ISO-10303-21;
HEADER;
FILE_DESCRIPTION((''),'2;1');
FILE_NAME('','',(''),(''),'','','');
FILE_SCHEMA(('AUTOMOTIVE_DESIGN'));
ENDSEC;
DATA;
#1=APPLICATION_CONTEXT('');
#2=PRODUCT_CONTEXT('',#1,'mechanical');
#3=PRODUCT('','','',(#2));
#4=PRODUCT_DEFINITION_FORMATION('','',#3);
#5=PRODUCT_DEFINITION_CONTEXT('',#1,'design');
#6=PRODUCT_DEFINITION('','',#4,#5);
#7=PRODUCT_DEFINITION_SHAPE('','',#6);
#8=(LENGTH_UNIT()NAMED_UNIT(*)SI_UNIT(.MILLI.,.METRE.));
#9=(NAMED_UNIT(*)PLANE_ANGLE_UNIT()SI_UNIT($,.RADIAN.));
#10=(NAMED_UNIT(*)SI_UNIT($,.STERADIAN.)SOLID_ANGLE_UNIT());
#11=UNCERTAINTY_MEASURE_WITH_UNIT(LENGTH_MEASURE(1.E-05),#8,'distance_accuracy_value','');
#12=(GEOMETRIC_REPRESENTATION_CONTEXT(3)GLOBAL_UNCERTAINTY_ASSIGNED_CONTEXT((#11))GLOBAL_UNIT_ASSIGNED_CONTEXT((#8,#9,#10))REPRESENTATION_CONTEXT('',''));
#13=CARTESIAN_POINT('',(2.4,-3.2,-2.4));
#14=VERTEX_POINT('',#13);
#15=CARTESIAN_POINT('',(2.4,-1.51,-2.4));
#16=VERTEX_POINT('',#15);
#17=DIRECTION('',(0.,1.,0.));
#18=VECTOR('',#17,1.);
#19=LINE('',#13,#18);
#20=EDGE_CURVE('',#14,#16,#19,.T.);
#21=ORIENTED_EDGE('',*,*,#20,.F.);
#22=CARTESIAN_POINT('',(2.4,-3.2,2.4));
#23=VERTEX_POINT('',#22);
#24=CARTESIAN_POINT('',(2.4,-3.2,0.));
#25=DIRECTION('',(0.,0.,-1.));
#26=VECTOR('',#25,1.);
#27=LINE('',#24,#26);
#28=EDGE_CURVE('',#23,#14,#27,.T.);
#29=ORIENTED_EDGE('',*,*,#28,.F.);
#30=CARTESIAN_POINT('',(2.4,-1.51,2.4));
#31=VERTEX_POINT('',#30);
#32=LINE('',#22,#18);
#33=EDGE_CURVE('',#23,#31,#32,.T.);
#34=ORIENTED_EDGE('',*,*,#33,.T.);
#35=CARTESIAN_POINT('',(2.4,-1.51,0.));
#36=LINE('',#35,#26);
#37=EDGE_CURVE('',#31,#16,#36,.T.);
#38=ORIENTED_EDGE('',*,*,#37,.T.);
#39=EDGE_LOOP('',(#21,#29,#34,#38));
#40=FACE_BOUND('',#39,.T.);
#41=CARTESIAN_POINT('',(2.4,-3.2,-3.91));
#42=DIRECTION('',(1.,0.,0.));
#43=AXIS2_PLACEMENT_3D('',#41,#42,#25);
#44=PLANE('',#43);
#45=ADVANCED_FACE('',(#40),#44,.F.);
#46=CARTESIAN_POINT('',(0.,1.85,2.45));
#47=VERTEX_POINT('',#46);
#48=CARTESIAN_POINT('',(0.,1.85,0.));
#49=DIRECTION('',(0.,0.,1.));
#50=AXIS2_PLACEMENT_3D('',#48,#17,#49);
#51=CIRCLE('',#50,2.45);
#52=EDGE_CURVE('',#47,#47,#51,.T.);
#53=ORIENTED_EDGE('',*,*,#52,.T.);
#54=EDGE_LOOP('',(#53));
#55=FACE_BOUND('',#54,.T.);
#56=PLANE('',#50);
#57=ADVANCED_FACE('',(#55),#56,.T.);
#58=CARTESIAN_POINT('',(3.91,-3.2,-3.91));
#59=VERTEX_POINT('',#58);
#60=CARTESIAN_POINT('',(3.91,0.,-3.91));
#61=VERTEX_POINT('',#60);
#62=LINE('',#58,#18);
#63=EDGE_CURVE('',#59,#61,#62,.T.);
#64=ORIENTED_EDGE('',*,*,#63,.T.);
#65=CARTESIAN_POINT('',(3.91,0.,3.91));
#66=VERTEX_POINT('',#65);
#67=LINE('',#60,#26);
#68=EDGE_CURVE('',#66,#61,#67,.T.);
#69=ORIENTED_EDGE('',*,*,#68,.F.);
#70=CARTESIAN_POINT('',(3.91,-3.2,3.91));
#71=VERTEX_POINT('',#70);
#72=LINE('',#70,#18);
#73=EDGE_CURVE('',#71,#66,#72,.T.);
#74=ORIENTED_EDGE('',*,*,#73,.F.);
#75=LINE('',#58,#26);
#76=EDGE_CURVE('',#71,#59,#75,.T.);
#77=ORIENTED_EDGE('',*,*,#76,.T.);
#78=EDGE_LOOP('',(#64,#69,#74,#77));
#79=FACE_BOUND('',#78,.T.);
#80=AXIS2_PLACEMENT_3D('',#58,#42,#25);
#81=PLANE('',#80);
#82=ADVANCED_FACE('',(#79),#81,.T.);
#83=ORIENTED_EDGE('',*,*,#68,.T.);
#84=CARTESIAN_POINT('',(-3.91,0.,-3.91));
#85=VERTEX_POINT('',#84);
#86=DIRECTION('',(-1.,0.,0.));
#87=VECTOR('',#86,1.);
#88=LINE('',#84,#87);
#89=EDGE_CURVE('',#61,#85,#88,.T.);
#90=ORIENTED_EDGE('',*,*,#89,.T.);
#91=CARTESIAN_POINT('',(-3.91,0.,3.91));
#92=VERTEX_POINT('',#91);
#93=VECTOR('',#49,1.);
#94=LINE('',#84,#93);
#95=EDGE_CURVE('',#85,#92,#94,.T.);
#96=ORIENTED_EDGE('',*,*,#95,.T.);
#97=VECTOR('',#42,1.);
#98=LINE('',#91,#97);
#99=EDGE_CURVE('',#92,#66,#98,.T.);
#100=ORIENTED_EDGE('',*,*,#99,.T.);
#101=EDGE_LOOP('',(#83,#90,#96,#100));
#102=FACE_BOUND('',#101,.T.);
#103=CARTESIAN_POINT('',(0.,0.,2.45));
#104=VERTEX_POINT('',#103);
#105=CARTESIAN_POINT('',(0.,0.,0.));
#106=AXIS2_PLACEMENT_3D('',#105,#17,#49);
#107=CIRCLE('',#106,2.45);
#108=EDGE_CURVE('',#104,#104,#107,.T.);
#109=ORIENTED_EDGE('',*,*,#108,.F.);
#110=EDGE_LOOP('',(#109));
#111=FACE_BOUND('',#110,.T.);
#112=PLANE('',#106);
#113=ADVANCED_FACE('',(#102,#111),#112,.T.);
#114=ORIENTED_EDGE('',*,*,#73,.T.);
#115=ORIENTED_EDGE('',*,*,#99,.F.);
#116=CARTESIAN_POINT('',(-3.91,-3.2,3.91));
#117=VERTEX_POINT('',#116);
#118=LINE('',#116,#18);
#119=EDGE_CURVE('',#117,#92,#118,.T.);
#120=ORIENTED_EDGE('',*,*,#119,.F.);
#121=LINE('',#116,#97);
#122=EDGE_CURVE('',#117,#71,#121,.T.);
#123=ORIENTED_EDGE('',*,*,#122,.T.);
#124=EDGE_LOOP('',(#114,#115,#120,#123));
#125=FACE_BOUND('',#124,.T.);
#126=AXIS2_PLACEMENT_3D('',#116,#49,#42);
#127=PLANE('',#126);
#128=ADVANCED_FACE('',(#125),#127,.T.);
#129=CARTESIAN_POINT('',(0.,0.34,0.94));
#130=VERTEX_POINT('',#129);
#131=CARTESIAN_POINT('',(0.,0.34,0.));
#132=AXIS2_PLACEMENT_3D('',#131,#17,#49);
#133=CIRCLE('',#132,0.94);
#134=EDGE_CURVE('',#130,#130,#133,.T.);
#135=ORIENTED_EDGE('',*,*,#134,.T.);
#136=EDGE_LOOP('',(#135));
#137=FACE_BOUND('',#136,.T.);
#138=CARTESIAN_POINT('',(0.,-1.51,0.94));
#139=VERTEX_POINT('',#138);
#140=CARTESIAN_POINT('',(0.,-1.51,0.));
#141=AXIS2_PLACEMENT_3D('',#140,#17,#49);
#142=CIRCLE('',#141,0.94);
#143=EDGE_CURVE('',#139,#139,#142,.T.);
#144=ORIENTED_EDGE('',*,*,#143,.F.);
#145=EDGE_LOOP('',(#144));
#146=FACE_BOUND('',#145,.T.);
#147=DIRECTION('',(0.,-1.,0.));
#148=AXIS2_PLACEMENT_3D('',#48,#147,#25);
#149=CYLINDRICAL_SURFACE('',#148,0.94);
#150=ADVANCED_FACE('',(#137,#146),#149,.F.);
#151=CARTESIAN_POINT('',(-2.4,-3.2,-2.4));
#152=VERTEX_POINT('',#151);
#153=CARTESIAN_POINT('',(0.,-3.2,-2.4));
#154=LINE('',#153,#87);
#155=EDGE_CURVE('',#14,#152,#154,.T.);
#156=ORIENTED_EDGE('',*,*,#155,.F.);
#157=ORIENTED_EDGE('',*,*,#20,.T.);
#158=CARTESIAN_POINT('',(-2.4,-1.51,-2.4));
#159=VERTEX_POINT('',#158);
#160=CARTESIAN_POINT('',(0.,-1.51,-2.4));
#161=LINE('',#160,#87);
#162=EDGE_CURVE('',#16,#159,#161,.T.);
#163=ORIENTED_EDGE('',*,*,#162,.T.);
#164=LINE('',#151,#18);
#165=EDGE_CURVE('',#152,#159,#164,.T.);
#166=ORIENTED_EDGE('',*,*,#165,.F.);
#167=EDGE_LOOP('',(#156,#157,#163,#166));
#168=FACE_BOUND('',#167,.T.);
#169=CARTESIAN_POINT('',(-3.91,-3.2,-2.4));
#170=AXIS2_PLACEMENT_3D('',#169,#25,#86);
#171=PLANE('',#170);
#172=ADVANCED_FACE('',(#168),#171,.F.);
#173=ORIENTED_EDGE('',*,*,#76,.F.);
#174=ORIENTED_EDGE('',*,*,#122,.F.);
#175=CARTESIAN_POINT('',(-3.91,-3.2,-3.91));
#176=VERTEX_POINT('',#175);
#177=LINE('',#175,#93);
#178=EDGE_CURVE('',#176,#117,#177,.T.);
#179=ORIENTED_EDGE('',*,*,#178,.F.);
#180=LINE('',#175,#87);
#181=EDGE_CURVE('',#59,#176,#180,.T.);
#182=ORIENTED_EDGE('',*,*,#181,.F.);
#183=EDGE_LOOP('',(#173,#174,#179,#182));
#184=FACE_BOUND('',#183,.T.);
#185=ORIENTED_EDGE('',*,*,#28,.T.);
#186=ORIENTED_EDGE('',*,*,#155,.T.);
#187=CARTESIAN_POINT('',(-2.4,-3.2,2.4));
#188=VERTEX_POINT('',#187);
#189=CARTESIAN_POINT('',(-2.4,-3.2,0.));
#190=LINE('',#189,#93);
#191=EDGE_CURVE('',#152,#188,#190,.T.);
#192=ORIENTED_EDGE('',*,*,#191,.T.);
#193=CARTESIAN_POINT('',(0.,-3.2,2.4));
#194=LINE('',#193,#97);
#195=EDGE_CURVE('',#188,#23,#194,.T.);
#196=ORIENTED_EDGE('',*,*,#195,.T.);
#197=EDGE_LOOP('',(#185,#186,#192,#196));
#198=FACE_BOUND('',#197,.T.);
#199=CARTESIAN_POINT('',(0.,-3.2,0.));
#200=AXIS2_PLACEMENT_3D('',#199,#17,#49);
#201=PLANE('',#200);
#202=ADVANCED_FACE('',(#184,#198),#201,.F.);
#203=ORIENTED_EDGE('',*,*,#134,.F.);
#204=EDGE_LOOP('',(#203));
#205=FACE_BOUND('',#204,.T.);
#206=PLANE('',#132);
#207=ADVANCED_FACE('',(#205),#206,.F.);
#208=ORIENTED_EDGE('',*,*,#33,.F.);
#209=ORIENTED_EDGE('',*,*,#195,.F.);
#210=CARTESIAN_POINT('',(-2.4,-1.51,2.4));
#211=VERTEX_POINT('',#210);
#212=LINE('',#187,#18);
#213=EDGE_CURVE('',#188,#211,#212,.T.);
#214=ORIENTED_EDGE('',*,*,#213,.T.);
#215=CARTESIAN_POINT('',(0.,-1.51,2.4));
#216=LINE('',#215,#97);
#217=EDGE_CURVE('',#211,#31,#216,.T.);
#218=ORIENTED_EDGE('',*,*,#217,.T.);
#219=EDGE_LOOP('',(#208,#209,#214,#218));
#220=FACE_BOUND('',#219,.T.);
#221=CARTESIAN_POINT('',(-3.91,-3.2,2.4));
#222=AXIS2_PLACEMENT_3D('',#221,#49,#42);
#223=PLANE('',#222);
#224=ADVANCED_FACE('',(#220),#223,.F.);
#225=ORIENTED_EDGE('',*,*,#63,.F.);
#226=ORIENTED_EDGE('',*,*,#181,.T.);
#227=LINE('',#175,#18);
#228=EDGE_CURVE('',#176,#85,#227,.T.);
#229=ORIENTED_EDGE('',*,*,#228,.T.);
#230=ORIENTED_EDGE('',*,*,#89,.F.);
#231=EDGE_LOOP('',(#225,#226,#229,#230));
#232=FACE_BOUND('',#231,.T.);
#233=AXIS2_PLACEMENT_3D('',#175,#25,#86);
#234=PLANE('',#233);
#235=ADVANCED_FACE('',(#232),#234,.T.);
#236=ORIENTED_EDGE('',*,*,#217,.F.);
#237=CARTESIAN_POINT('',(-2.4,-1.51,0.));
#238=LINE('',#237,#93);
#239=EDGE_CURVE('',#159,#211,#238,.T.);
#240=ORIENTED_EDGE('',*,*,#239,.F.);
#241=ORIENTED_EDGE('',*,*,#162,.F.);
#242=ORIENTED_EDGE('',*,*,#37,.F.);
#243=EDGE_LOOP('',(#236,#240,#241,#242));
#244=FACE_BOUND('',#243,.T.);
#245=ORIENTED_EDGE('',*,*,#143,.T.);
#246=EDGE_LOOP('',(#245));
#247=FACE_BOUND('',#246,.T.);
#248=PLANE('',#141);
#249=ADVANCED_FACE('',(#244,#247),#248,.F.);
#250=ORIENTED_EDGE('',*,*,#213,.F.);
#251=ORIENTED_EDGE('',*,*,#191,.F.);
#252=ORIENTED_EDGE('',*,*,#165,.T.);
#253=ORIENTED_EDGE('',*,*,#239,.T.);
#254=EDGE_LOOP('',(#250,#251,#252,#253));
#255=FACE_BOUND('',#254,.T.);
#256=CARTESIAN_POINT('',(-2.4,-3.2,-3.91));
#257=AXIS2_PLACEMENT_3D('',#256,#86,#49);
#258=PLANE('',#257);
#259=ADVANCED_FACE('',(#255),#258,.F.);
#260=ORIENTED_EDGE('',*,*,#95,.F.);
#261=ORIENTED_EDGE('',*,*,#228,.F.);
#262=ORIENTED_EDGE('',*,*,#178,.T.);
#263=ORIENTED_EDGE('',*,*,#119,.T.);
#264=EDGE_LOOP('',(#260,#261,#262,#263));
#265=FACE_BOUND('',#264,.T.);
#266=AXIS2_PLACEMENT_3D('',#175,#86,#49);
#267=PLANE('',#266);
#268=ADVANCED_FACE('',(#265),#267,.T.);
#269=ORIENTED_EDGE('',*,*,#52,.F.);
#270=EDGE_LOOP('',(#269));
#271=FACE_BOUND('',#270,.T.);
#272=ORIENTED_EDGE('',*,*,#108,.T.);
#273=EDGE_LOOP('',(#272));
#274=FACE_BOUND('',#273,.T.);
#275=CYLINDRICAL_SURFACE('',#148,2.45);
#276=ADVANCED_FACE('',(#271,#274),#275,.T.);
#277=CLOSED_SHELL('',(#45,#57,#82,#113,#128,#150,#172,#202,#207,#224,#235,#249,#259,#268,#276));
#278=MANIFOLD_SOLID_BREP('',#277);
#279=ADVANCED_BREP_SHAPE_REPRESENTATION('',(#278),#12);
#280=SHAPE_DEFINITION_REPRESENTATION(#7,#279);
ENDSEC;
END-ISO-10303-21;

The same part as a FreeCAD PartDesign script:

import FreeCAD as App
import Part
import Sketcher

V = App.Vector
Q = App.Units.Quantity


def faces_at(feature, points):
    """Names of the faces that lie closest to the given points."""
    faces = feature.Shape.Faces
    near = lambda p: min(range(len(faces)), key=lambda i: faces[i].distToShape(Part.Vertex(*p))[0])
    return sorted({f"Face{near(p) + 1}" for p in points})


def add_polygon(sketch, points):
    """Adds a closed chain of lines whose ends are joined by coincident constraints."""
    first, n = sketch.GeometryCount, len(points)
    for a, b in zip(points, points[1:] + points[:1]):
        sketch.addGeometry(Part.LineSegment(App.Vector(*a, 0), App.Vector(*b, 0)), False)
    for i in range(n):
        sketch.addConstraint(Sketcher.Constraint("Coincident", first + i, 2, first + (i + 1) % n, 1))

doc = App.newDocument("Part")
params = doc.addObject("Spreadsheet::Sheet", "Params")
for row, (alias, value) in enumerate([
    ("sketch1_width", "7.82 mm"),
    ("pad1_length", "3.2 mm"),
    ("sketch2_diameter", "4.9 mm"),
    ("pad2_length", "1.85 mm"),
    ("thickness_wall", "1.51 mm"),
], start=1):
    params.set(f"A{row}", alias)
    params.set(f"B{row}", "=" + value)
    params.setAlias(f"B{row}", alias)

body = doc.addObject("PartDesign::Body", "Body")

sketch1 = body.newObject("Sketcher::SketchObject", "Sketch")
sketch1.AttachmentSupport = (doc.getObject("XZ_Plane"), [""])
sketch1.MapMode = "FlatFace"
add_polygon(sketch1, [(-4, -4), (-4, 4), (4, 4), (4, -4)])
sketch1.addConstraint([
    Sketcher.Constraint("Vertical", 0),
    Sketcher.Constraint("Horizontal", 1),
    Sketcher.Constraint("Vertical", 2),
    Sketcher.Constraint("Horizontal", 3),
    Sketcher.Constraint("Symmetric", 0, 2, 2, 2, -1, 1),
    Sketcher.Constraint("Equal", 3, 0),
    Sketcher.Constraint("DistanceX", 1, 1, 1, 2, Q("7.82 mm")),
])
sketch1.setExpression("Constraints[10]", "Params.sketch1_width")
pad1 = body.newObject("PartDesign::Pad", "Pad")
pad1.Profile = sketch1
pad1.setExpression("Length", "Params.pad1_length")

sketch2 = body.newObject("Sketcher::SketchObject", "Sketch001")
sketch2.AttachmentSupport = (doc.getObject("XZ_Plane"), [""])
sketch2.MapMode = "FlatFace"
sketch2.addGeometry(Part.Circle(V(0, 0, 0), V(0, 0, 1), 2.5), False)
sketch2.addConstraint([
    Sketcher.Constraint("Coincident", 0, 3, -1, 1),
    Sketcher.Constraint("Diameter", 0, Q("4.9 mm")),
])
sketch2.setExpression("Constraints[1]", "Params.sketch2_diameter")
pad2 = body.newObject("PartDesign::Pad", "Pad001")
pad2.Profile = sketch2
pad2.setExpression("Length", "Params.pad2_length")
pad2.Reversed = True
doc.recompute()

thickness = body.newObject("PartDesign::Thickness", "Thickness")
thickness.Base = (pad2, faces_at(pad2, [(0, -3.2, 0)]))
thickness.setExpression("Value", "Params.thickness_wall")
thickness.Reversed = True
thickness.Join = "Intersection"

doc.recompute()
